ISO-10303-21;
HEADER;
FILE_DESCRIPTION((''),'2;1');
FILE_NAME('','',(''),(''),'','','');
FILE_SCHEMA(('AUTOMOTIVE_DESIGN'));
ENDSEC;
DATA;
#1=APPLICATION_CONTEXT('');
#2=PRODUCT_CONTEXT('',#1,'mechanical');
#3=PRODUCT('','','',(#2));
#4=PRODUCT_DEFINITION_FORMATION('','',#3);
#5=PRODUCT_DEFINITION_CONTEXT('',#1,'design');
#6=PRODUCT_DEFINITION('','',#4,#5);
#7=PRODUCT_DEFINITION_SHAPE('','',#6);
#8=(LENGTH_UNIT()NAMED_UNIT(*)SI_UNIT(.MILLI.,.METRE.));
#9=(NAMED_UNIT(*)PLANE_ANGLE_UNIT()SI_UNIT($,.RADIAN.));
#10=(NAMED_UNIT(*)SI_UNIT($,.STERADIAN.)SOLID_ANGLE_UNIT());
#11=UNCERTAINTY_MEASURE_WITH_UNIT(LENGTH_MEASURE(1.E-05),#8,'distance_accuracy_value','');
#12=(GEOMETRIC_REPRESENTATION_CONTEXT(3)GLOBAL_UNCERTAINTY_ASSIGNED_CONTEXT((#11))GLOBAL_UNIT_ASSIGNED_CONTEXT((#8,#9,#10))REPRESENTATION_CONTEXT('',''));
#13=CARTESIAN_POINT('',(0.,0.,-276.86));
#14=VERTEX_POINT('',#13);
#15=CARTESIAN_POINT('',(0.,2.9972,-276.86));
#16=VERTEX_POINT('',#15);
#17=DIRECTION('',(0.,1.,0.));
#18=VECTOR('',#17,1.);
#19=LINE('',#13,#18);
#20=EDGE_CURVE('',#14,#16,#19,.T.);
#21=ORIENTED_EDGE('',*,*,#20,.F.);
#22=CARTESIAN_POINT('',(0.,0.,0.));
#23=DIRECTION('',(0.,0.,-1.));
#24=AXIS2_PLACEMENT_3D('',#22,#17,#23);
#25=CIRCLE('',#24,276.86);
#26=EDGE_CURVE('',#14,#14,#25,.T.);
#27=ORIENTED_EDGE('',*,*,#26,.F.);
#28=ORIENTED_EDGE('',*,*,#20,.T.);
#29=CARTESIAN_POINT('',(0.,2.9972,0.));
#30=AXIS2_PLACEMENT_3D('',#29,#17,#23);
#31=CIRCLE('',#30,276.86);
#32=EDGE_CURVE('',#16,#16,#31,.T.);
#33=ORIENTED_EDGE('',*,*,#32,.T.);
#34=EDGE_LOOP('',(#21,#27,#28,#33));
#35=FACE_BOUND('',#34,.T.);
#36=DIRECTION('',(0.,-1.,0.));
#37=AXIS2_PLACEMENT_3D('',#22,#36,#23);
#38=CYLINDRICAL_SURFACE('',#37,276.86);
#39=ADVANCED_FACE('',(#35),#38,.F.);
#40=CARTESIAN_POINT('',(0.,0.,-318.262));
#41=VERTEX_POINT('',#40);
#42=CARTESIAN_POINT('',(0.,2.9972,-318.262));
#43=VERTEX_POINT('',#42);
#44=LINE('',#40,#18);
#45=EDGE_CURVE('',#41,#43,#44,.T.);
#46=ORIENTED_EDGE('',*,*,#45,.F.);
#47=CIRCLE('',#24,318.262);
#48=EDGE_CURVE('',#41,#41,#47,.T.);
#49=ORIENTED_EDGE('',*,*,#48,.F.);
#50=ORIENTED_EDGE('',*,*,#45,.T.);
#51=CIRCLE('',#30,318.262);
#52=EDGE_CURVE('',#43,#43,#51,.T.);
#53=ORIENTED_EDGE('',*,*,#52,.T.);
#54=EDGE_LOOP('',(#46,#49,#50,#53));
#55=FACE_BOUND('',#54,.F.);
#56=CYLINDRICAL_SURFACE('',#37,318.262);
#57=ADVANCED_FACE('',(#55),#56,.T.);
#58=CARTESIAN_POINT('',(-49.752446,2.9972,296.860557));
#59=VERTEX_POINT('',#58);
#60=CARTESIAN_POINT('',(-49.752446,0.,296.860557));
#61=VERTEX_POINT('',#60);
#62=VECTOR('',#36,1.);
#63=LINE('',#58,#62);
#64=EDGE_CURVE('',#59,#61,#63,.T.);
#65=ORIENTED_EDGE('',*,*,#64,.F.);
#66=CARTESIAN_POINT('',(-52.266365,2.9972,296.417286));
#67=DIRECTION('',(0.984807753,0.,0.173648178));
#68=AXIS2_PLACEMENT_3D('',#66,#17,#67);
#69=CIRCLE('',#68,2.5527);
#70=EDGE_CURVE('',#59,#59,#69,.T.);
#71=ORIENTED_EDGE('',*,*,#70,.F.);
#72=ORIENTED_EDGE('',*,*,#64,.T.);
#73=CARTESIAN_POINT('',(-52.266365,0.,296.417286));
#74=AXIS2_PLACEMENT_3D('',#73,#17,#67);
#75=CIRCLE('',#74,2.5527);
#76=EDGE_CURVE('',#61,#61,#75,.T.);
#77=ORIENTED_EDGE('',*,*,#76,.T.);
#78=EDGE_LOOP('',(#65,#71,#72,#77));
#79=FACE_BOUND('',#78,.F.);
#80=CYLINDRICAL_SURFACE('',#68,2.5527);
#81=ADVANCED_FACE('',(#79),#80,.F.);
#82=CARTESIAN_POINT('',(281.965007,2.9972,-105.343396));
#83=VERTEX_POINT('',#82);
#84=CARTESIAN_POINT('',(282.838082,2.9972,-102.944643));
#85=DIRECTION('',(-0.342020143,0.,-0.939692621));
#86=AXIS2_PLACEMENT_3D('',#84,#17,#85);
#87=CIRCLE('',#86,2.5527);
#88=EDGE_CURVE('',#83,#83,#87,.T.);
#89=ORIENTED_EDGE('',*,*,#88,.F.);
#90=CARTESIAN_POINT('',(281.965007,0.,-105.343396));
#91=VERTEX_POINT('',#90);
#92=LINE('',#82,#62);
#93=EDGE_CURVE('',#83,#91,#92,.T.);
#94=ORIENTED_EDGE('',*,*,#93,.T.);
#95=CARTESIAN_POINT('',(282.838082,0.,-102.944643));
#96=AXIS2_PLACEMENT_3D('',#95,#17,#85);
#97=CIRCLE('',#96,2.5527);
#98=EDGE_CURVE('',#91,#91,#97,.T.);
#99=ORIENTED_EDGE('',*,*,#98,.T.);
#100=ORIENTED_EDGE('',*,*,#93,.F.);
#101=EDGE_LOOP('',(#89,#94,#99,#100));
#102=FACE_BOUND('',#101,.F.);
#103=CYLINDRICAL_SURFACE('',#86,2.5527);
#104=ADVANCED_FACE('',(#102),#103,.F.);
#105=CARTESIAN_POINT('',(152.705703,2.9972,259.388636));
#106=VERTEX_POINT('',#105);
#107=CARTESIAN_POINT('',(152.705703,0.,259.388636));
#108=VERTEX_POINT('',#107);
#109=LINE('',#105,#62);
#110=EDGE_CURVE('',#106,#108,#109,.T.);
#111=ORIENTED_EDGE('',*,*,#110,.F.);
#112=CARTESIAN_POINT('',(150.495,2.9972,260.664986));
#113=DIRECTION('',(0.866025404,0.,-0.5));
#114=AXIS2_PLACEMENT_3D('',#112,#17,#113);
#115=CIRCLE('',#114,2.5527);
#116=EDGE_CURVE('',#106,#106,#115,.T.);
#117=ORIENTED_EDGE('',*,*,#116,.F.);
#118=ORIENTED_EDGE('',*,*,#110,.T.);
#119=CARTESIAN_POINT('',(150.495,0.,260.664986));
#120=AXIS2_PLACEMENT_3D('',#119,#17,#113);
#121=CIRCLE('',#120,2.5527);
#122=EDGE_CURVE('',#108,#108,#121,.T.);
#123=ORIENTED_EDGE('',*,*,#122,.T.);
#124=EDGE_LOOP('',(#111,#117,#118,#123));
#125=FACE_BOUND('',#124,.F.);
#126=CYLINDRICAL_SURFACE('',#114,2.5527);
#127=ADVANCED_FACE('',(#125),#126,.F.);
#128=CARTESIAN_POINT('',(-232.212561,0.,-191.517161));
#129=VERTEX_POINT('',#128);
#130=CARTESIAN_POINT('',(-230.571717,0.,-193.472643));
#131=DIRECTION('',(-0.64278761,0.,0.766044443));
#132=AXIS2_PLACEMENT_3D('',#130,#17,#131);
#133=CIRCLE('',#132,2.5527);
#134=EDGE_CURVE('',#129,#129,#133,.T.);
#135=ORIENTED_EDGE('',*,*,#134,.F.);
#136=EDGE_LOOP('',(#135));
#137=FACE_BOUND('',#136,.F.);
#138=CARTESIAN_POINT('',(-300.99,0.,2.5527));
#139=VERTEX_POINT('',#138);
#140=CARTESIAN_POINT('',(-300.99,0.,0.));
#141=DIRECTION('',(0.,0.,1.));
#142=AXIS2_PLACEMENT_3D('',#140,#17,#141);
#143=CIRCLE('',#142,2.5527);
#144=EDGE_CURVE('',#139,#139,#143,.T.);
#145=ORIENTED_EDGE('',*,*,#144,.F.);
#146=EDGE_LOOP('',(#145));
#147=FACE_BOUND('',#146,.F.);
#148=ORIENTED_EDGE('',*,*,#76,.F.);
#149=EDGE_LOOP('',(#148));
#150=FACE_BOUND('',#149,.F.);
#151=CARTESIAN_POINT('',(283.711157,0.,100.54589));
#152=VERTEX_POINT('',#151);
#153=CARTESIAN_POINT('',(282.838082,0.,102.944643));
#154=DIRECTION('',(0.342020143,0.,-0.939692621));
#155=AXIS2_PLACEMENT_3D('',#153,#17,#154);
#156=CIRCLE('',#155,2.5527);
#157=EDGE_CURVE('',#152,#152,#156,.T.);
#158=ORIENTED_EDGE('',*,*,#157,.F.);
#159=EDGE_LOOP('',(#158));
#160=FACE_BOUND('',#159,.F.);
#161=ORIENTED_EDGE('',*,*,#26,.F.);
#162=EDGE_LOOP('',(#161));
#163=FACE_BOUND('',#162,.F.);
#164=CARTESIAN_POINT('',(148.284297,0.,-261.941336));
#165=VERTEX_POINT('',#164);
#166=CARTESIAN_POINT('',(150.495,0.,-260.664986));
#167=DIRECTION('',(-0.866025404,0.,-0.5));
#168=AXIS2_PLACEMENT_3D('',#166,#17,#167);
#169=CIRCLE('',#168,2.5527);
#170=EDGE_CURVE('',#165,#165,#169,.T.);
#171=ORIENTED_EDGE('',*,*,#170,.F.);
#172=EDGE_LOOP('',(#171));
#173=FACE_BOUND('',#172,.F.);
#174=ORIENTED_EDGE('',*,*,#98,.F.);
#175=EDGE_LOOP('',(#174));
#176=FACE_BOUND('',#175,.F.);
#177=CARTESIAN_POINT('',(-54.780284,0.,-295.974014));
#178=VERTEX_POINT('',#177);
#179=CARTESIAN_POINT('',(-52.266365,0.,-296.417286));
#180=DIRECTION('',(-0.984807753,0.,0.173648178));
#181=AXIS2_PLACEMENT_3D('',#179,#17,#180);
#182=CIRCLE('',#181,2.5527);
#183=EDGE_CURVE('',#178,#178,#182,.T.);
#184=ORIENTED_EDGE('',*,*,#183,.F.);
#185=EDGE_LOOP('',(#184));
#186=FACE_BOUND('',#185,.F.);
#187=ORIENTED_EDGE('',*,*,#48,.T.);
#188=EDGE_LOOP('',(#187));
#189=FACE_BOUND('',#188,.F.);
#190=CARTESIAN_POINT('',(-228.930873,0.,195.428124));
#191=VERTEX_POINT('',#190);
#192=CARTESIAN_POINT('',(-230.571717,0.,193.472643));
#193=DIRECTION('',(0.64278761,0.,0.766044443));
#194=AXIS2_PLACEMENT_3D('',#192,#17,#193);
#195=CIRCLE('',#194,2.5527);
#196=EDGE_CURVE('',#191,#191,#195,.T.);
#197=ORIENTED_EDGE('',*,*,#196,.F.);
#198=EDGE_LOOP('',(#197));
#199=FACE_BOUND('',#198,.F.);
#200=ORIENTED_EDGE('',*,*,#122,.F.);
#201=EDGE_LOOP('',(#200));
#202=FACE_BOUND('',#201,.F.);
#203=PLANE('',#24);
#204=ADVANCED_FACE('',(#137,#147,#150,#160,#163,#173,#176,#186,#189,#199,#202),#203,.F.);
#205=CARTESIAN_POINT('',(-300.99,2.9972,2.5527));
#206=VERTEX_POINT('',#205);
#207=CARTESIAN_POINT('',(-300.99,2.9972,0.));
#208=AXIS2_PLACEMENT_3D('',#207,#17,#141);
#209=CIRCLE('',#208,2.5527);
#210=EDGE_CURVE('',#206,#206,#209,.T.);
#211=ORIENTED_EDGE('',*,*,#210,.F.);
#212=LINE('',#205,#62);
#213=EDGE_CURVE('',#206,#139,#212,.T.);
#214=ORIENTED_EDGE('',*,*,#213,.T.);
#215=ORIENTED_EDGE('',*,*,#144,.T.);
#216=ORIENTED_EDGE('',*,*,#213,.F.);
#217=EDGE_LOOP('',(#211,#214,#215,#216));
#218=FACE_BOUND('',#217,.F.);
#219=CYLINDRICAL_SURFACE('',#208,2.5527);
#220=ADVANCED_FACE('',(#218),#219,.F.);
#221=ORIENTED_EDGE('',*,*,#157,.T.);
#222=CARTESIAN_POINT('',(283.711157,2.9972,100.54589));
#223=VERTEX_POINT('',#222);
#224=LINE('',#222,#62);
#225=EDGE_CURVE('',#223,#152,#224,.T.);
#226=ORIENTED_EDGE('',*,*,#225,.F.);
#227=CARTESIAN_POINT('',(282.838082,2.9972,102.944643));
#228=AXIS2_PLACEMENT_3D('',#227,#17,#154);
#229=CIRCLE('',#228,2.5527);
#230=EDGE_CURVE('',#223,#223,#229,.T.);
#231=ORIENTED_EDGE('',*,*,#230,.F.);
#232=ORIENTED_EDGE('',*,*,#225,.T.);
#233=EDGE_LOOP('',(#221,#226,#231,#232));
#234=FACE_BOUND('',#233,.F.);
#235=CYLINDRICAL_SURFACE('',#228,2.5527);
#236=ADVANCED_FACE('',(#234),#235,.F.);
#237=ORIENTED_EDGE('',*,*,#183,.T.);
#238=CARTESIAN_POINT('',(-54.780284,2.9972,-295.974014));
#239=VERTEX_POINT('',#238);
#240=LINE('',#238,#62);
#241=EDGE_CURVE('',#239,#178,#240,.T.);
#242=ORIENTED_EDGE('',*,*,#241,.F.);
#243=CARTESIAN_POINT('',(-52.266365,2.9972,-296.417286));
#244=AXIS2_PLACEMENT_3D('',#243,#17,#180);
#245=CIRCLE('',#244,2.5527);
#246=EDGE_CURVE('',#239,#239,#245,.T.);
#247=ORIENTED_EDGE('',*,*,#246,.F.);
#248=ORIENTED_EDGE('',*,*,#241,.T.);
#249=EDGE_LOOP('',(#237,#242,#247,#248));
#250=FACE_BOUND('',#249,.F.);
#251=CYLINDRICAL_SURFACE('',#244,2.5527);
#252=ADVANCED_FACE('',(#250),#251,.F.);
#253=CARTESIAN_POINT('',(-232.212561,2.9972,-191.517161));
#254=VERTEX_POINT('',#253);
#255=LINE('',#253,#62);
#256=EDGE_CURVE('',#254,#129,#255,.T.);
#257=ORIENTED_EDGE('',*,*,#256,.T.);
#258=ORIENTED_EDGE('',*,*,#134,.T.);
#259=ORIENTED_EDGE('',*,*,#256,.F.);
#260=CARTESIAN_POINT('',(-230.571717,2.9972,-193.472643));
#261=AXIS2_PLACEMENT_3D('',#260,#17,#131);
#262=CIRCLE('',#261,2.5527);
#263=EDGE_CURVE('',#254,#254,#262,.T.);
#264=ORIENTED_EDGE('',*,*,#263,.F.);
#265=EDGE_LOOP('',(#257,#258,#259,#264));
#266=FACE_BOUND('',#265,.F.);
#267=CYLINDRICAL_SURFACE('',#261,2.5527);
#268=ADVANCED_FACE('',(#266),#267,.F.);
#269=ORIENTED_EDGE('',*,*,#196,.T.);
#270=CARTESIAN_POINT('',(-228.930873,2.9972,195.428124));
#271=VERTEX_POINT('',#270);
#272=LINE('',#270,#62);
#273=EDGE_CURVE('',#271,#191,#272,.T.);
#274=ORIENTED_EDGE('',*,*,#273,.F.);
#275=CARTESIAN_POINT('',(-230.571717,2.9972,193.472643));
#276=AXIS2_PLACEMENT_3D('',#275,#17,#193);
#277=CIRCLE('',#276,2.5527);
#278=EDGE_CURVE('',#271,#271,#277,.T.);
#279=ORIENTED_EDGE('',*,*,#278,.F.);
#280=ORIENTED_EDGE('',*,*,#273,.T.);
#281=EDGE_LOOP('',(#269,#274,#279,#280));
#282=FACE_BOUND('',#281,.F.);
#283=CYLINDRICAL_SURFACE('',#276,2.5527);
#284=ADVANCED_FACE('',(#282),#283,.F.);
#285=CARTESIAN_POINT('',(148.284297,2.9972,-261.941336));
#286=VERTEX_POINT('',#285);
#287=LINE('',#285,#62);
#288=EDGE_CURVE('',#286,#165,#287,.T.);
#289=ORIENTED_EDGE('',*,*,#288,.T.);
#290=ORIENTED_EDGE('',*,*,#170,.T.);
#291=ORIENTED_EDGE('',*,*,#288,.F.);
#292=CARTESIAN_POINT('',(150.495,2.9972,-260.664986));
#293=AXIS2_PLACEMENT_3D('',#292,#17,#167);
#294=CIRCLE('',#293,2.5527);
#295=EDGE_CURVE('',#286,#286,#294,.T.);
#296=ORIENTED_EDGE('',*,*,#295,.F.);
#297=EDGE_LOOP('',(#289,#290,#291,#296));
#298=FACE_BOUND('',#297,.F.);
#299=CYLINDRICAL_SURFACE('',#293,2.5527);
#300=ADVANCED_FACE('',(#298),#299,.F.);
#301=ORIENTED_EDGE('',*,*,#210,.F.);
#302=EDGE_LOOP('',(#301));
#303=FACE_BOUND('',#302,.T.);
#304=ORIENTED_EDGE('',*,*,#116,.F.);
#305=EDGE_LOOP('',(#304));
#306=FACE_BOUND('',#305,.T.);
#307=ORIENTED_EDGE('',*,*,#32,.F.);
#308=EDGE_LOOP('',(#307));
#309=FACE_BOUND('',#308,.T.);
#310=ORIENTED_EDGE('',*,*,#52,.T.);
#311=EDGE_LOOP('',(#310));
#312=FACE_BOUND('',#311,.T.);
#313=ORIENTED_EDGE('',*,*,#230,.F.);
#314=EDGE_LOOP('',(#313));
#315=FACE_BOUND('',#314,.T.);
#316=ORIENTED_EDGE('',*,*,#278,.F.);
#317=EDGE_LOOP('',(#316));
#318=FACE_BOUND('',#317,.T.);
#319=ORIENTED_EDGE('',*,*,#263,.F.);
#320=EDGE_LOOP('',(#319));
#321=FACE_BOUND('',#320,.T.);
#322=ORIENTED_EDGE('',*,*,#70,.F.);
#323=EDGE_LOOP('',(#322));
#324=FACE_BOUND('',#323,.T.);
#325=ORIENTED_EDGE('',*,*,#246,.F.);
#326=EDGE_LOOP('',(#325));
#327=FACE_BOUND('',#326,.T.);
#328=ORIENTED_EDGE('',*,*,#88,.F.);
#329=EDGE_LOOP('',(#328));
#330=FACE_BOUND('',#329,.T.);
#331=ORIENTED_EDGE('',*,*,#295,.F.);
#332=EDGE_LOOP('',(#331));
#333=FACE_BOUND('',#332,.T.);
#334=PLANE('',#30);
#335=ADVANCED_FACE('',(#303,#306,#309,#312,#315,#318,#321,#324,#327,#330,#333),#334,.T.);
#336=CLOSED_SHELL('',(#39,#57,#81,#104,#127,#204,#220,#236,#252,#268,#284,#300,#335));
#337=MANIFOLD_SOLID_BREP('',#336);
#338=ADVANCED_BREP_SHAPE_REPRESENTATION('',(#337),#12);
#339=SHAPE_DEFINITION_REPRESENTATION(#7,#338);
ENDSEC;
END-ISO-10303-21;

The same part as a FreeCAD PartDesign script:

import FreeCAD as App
import Part
import Sketcher

V = App.Vector
Q = App.Units.Quantity

doc = App.newDocument("Part")
body = doc.addObject("PartDesign::Body", "Body")

sketch1 = doc.addObject("Sketcher::SketchObject", "Sketch")
body.addObject(sketch1)
sketch1.AttachmentSupport = (doc.XZ_Plane, [""])
sketch1.MapMode = "FlatFace"
sketch1.addGeometry([
    Part.Circle(V(0, 0, 0), V(0, 0, 1), 318),
    Part.Circle(V(0, 0, 0), V(0, 0, 1), 277),
], False)
sketch1.addConstraint([
    Sketcher.Constraint("Coincident", 0, 3, -1, 1),
    Sketcher.Constraint("Coincident", 1, 3, -1, 1),
    Sketcher.Constraint("Diameter", 1, Q("21.8 in")),
    Sketcher.Constraint("Diameter", 0, Q("25.06 in")),
])
pad1 = doc.addObject("PartDesign::Pad", "Pad")
body.addObject(pad1)
pad1.Profile = sketch1
pad1.Length = Q("0.118 in")
pad1.Reversed = True

sketch2 = doc.addObject("Sketcher::SketchObject", "Sketch001")
body.addObject(sketch2)
sketch2.AttachmentSupport = (doc.XZ_Plane, [""])
sketch2.MapMode = "FlatFace"
sketch2.AttachmentOffset = App.Placement(V(0, 0, -0.118 * 25.4), App.Rotation())
sketch2.addGeometry(Part.Circle(V(-301, 0, 0), V(0, 0, 1), 2.6), False)
sketch2.addConstraint([
    Sketcher.Constraint("PointOnObject", 0, 3, -1),
    Sketcher.Constraint("Diameter", 0, Q("0.201 in")),
    Sketcher.Constraint("DistanceX", 0, 3, -1, 1, Q("11.85 in")),
])
pocket1 = doc.addObject("PartDesign::Pocket", "Pocket")
body.addObject(pocket1)
pocket1.Profile = sketch2
pocket1.Type = "ThroughAll"
pocket1.Reversed = True
doc.recompute()

polarpattern = doc.addObject("PartDesign::PolarPattern", "PolarPattern")
body.addObject(polarpattern)
polarpattern.Originals = [pocket1]
polarpattern.Axis = (doc.Y_Axis, [""])
polarpattern.Angle = 360
polarpattern.Occurrences = 9
body.Tip = polarpattern

doc.recompute()
